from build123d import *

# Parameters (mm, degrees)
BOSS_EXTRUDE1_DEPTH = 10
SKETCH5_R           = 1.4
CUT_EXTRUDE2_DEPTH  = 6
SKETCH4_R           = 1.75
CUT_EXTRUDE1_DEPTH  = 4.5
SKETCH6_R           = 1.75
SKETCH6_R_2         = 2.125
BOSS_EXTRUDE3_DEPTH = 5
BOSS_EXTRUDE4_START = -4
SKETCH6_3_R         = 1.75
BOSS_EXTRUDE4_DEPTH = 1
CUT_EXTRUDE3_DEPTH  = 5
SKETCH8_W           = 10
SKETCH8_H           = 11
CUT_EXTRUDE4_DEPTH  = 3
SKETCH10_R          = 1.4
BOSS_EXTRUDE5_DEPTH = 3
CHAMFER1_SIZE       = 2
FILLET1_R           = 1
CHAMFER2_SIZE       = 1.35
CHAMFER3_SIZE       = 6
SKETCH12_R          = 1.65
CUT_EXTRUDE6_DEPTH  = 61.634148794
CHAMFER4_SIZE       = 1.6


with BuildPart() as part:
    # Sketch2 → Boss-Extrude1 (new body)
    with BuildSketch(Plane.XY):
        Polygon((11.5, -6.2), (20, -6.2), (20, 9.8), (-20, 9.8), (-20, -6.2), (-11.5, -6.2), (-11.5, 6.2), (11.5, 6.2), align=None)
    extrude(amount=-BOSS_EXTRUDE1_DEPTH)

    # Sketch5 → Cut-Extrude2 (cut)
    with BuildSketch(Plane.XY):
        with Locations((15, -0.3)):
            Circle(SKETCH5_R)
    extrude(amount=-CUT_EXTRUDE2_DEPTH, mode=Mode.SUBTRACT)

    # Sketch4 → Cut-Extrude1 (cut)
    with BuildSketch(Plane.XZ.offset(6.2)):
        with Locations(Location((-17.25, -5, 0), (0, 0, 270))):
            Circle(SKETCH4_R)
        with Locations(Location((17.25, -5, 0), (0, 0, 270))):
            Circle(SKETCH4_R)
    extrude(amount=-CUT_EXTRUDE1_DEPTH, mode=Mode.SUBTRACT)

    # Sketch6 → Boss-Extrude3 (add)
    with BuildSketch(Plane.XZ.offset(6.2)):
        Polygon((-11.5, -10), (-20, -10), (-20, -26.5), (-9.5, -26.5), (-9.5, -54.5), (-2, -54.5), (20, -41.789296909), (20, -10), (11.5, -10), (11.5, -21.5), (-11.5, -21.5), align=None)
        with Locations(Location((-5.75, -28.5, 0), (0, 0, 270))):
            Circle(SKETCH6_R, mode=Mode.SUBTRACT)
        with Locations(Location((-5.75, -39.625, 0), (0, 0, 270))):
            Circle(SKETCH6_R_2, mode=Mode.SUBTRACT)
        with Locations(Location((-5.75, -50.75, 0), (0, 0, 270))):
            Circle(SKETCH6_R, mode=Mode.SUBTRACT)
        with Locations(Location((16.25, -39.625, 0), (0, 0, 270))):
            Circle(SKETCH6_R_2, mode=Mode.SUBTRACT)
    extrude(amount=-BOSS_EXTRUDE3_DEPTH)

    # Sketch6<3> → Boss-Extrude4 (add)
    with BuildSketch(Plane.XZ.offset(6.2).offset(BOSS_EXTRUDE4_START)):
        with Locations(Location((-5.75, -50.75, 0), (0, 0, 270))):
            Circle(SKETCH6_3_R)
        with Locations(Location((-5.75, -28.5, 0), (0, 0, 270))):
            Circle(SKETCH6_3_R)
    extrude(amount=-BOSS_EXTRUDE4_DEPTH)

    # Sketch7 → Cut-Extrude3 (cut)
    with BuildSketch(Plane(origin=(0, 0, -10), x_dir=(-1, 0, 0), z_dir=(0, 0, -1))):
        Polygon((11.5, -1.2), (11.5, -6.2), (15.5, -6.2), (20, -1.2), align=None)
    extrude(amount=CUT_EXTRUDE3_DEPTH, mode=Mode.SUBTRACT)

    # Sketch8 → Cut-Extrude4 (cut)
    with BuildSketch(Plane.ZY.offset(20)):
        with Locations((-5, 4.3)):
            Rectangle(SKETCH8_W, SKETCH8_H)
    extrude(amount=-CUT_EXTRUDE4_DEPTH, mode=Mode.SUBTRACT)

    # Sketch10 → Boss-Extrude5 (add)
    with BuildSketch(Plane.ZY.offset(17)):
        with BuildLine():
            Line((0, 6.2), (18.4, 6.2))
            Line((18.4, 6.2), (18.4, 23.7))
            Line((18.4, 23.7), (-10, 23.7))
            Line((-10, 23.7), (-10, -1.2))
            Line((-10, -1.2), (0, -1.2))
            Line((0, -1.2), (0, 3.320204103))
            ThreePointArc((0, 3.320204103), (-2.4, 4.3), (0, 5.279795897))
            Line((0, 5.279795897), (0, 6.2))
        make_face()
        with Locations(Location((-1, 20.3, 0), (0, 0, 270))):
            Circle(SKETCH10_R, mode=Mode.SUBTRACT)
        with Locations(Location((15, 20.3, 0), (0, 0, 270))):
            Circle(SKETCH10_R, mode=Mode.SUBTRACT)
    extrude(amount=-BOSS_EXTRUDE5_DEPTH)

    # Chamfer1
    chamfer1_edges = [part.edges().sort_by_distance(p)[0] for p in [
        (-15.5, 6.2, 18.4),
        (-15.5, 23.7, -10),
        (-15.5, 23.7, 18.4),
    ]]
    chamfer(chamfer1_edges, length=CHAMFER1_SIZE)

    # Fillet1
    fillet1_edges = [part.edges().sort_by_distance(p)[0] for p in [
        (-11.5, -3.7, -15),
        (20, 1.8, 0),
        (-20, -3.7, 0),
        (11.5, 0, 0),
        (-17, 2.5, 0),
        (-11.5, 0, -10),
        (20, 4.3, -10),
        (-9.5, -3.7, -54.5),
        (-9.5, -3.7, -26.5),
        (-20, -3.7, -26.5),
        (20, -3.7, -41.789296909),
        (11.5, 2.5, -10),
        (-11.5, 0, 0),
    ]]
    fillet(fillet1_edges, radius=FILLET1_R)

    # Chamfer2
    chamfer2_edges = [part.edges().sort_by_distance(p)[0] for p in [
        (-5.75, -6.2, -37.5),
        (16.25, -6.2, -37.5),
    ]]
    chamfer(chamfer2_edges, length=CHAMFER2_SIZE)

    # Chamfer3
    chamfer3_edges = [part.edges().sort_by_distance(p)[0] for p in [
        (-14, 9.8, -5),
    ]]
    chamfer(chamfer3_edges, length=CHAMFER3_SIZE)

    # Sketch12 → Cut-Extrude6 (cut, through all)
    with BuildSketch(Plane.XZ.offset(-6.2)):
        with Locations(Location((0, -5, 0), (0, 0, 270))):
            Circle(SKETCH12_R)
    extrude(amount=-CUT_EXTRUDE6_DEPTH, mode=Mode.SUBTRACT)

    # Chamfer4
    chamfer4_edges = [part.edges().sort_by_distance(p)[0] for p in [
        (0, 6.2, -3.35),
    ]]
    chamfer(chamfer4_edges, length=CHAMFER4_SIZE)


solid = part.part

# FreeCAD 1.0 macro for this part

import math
import FreeCAD as App
import Part
import Sketcher

V = App.Vector


def edges_at(feature, points):
    """Names of the edges that pass closest to the given points."""
    edges = feature.Shape.Edges
    near = lambda p: min(range(len(edges)), key=lambda i: edges[i].distToShape(Part.Vertex(*p))[0])
    return sorted({f"Edge{near(p) + 1}" for p in points})


def add_polygon(sketch, points):
    """Adds a closed chain of lines whose ends are joined by coincident constraints."""
    first, n = sketch.GeometryCount, len(points)
    for a, b in zip(points, points[1:] + points[:1]):
        sketch.addGeometry(Part.LineSegment(App.Vector(*a, 0), App.Vector(*b, 0)), False)
    for i in range(n):
        sketch.addConstraint(Sketcher.Constraint("Coincident", first + i, 2, first + (i + 1) % n, 1))

doc = App.newDocument("Part")
body = doc.addObject("PartDesign::Body", "Body")

sketch1 = body.newObject("Sketcher::SketchObject", "Sketch")
sketch1.AttachmentSupport = (doc.getObject("XY_Plane"), [""])
sketch1.MapMode = "FlatFace"
add_polygon(sketch1, [(12, -6), (20, -6), (20, 10), (-20, 10), (-20, -6), (-12, -6), (-12, 6), (12, 6)])
sketch1.addConstraint([
    Sketcher.Constraint("Horizontal", 0),
    Sketcher.Constraint("Vertical", 1),
    Sketcher.Constraint("Horizontal", 2),
    Sketcher.Constraint("Vertical", 3),
    Sketcher.Constraint("Horizontal", 4),
    Sketcher.Constraint("Vertical", 5),
    Sketcher.Constraint("Horizontal", 6),
    Sketcher.Constraint("Vertical", 7),
    Sketcher.Constraint("Symmetric", 4, 2, 6, 2, -1, 1),
    Sketcher.Constraint("Symmetric", 0, 2, 3, 2, -2),
    Sketcher.Constraint("DistanceX", 2, 2, 2, 1, 40.0),
    Sketcher.Constraint("DistanceX", 6, 1, 6, 2, 23.0),
    Sketcher.Constraint("DistanceY", 1, 1, 1, 2, 16.0),
    Sketcher.Constraint("DistanceY", 5, 1, 5, 2, 12.4),
])
pad1 = body.newObject("PartDesign::Pad", "Pad")
pad1.Profile = sketch1
pad1.Length = 10
pad1.Reversed = True

sketch2 = body.newObject("Sketcher::SketchObject", "Sketch001")
sketch2.AttachmentSupport = (doc.getObject("XY_Plane"), [""])
sketch2.MapMode = "FlatFace"
sketch2.addGeometry(Part.Circle(V(15, -0.3, 0), V(0, 0, 1), 1.4), False)
sketch2.addConstraint([
    Sketcher.Constraint("Diameter", 0, 2.8),
    Sketcher.Constraint("DistanceX", -1, 1, 0, 3, 15.0),
    Sketcher.Constraint("DistanceY", 0, 3, -1, 1, 0.3),
])
pocket1 = body.newObject("PartDesign::Pocket", "Pocket")
pocket1.Profile = sketch2
pocket1.Length = 6

sketch3 = body.newObject("Sketcher::SketchObject", "Sketch002")
sketch3.AttachmentSupport = (doc.getObject("XZ_Plane"), [""])
sketch3.MapMode = "FlatFace"
sketch3.AttachmentOffset = App.Placement(V(0, 0, 6.2), App.Rotation())
sketch3.addGeometry([
    Part.Circle(V(-17.2, -5, 0), V(0, 0, 1), 1.8),
    Part.Circle(V(17.2, -5, 0), V(0, 0, 1), 1.8),
], False)
sketch3.addConstraint([
    Sketcher.Constraint("Equal", 0, 1),
    Sketcher.Constraint("Symmetric", 0, 3, 1, 3, -2),
    Sketcher.Constraint("Diameter", 0, 3.5),
    Sketcher.Constraint("DistanceY", 0, 3, -1, 1, 5.0),
    Sketcher.Constraint("DistanceX", 0, 3, 1, 3, 34.5),
])
pocket2 = body.newObject("PartDesign::Pocket", "Pocket001")
pocket2.Profile = sketch3
pocket2.Length = 4.5

sketch4 = body.newObject("Sketcher::SketchObject", "Sketch003")
sketch4.AttachmentSupport = (doc.getObject("XZ_Plane"), [""])
sketch4.MapMode = "FlatFace"
sketch4.AttachmentOffset = App.Placement(V(0, 0, 6.2), App.Rotation())
add_polygon(sketch4, [(-11.5, -10), (-20, -10), (-20, -26.5), (-9.5, -26.5), (-9.5, -54.5), (-2, -54.5), (20, -41.8), (20, -10), (11.5, -10), (11.5, -21.5), (-11.5, -21.5)])
sketch4.addGeometry(Part.Circle(V(-5.8, -50.8, 0), V(0, 0, 1), 1.8), False)
sketch4.addGeometry(Part.Circle(V(-5.8, -39.6, 0), V(0, 0, 1), 2.1), False)
sketch4.addGeometry(Part.Circle(V(16.2, -39.6, 0), V(0, 0, 1), 2.1), False)
sketch4.addGeometry(Part.Circle(V(-5.8, -28.5, 0), V(0, 0, 1), 1.8), False)
sketch4.addConstraint([
    Sketcher.Constraint("Horizontal", 0),
    Sketcher.Constraint("Vertical", 1),
    Sketcher.Constraint("Horizontal", 2),
    Sketcher.Constraint("Vertical", 3),
    Sketcher.Constraint("Horizontal", 4),
    Sketcher.Constraint("Vertical", 6),
    Sketcher.Constraint("Horizontal", 7),
    Sketcher.Constraint("Vertical", 8),
    Sketcher.Constraint("Horizontal", 9),
    Sketcher.Constraint("Vertical", 10),
    Sketcher.Constraint("Equal", 12, 13),
    Sketcher.Constraint("Equal", 11, 14),
    Sketcher.Constraint("Symmetric", 0, 2, 6, 2, -2),
    Sketcher.Constraint("Horizontal", 12, 3, 13, 3),
    Sketcher.Constraint("Vertical", 11, 3, 12, 3),
    Sketcher.Constraint("Vertical", 12, 3, 14, 3),
    Sketcher.Constraint("Equal", 0, 7),
    Sketcher.Constraint("Diameter", 11, 3.5),
    Sketcher.Constraint("Diameter", 12, 4.25),
    Sketcher.Constraint("DistanceX", 9, 2, 9, 1, 23.0),
    Sketcher.Constraint("DistanceY", 3, 2, 3, 1, 28.0),
    Sketcher.Constraint("DistanceX", 0, 2, 0, 1, 8.5),
    Sketcher.Constraint("DistanceX", 2, 1, 2, 2, 10.5),
    Sketcher.Constraint("DistanceX", 4, 1, 4, 2, 7.5),
    Sketcher.Constraint("DistanceY", 1, 2, 1, 1, 16.5),
    Sketcher.Constraint("DistanceY", 8, 2, 8, 1, 11.5),
    Sketcher.Constraint("DistanceY", 0, 2, -1, 1, 10.0),
    Sketcher.Constraint("DistanceX", 12, 3, 13, 3, 22.0),
    Sketcher.Constraint("DistanceY", 14, 3, 1, 2, 2.0),
    Sketcher.Constraint("DistanceX", 11, 3, -1, 1, 5.75),
    Sketcher.Constraint("DistanceY", 11, 3, -1, 1, 50.75),
    Sketcher.Constraint("DistanceY", 12, 3, -1, 1, 39.625),
    Sketcher.Constraint("Distance", 5, 25.407912),
])
pad2 = body.newObject("PartDesign::Pad", "Pad001")
pad2.Profile = sketch4
pad2.Length = 5
pad2.Reversed = True

sketch5 = body.newObject("Sketcher::SketchObject", "Sketch004")
sketch5.AttachmentSupport = (doc.getObject("XZ_Plane"), [""])
sketch5.MapMode = "FlatFace"
sketch5.AttachmentOffset = App.Placement(V(0, 0, 2.2), App.Rotation())
sketch5.addGeometry([
    Part.Circle(V(-5.8, -50.8, 0), V(0, 0, 1), 1.8),
    Part.Circle(V(-5.8, -28.5, 0), V(0, 0, 1), 1.8),
], False)
sketch5.addConstraint([
    Sketcher.Constraint("Equal", 0, 1),
    Sketcher.Constraint("Vertical", 0, 3, 1, 3),
    Sketcher.Constraint("Diameter", 0, 3.5),
    Sketcher.Constraint("DistanceY", 1, 3, -1, 1, 28.5),
    Sketcher.Constraint("DistanceX", 0, 3, -1, 1, 5.75),
    Sketcher.Constraint("DistanceY", 0, 3, -1, 1, 50.75),
])
pad3 = body.newObject("PartDesign::Pad", "Pad002")
pad3.Profile = sketch5
pad3.Length = 1
pad3.Reversed = True

sketch6 = body.newObject("Sketcher::SketchObject", "Sketch005")
sketch6.AttachmentSupport = (doc.getObject("XY_Plane"), [""])
sketch6.MapMode = "FlatFace"
sketch6.AttachmentOffset = App.Placement(V(0, 0, -10), App.Rotation())
add_polygon(sketch6, [(-11.5, -1.2), (-11.5, -6.2), (-15.5, -6.2), (-20, -1.2)])
sketch6.addConstraint([
    Sketcher.Constraint("Vertical", 0),
    Sketcher.Constraint("Horizontal", 1),
    Sketcher.Constraint("Horizontal", 3),
    Sketcher.Constraint("DistanceX", 1, 2, 1, 1, 4.0),
    Sketcher.Constraint("DistanceY", 0, 2, 0, 1, 5.0),
    Sketcher.Constraint("DistanceX", 3, 1, 3, 2, 8.5),
    Sketcher.Constraint("DistanceX", 2, 2, -1, 1, 20.0),
    Sketcher.Constraint("DistanceY", 0, 2, -1, 1, 6.2),
])
pocket3 = body.newObject("PartDesign::Pocket", "Pocket002")
pocket3.Profile = sketch6
pocket3.Length = 5

sketch7 = body.newObject("Sketcher::SketchObject", "Sketch006")
sketch7.AttachmentSupport = (doc.getObject("YZ_Plane"), [""])
sketch7.MapMode = "FlatFace"
sketch7.AttachmentOffset = App.Placement(V(0, 0, -20), App.Rotation())
add_polygon(sketch7, [(10, -10), (-1, -10), (-1, 0), (10, 0)])
sketch7.addConstraint([
    Sketcher.Constraint("Horizontal", 0),
    Sketcher.Constraint("Vertical", 1),
    Sketcher.Constraint("Horizontal", 2),
    Sketcher.Constraint("Vertical", 3),
    Sketcher.Constraint("PointOnObject", 1, 2, -1),
    Sketcher.Constraint("DistanceX", 0, 2, 0, 1, 11.0),
    Sketcher.Constraint("DistanceY", 1, 1, 1, 2, 10.0),
    Sketcher.Constraint("DistanceX", 0, 2, -1, 1, 1.2),
])
pocket4 = body.newObject("PartDesign::Pocket", "Pocket003")
pocket4.Profile = sketch7
pocket4.Length = 3
pocket4.Reversed = True

sketch8 = body.newObject("Sketcher::SketchObject", "Sketch007")
sketch8.AttachmentSupport = (doc.getObject("YZ_Plane"), [""])
sketch8.MapMode = "FlatFace"
sketch8.AttachmentOffset = App.Placement(V(0, 0, -17), App.Rotation())
sketch8.addGeometry([
    Part.LineSegment(V(6.2, 0, 0), V(6.2, 18.4, 0)),
    Part.LineSegment(V(6.2, 18.4, 0), V(23.7, 18.4, 0)),
    Part.LineSegment(V(23.7, 18.4, 0), V(23.7, -10, 0)),
    Part.LineSegment(V(23.7, -10, 0), V(-1.2, -10, 0)),
    Part.LineSegment(V(-1.2, -10, 0), V(-1.2, 0, 0)),
    Part.LineSegment(V(-1.2, 0, 0), V(3.3, 0, 0)),
    Part.ArcOfCircle(Part.Circle(V(4.3, -1, 0), V(0, 0, 1), 1.4), math.radians(134), math.radians(406)),
    Part.LineSegment(V(5.3, 0, 0), V(6.2, 0, 0)),
    Part.Circle(V(20.3, -1, 0), V(0, 0, 1), 1.4),
    Part.Circle(V(20.3, 15, 0), V(0, 0, 1), 1.4),
], False)
sketch8.addConstraint([
    Sketcher.Constraint("Coincident", 0, 2, 1, 1),
    Sketcher.Constraint("Coincident", 1, 2, 2, 1),
    Sketcher.Constraint("Coincident", 2, 2, 3, 1),
    Sketcher.Constraint("Coincident", 3, 2, 4, 1),
    Sketcher.Constraint("Coincident", 4, 2, 5, 1),
    Sketcher.Constraint("Coincident", 5, 2, 6, 1),
    Sketcher.Constraint("Coincident", 6, 2, 7, 1),
    Sketcher.Constraint("Coincident", 7, 2, 0, 1),
    Sketcher.Constraint("Vertical", 0),
    Sketcher.Constraint("Horizontal", 1),
    Sketcher.Constraint("Vertical", 2),
    Sketcher.Constraint("Horizontal", 3),
    Sketcher.Constraint("Vertical", 4),
    Sketcher.Constraint("Horizontal", 5),
    Sketcher.Constraint("Horizontal", 7),
    Sketcher.Constraint("Equal", 6, 8),
    Sketcher.Constraint("Equal", 8, 9),
    Sketcher.Constraint("PointOnObject", 4, 2, -1),
    Sketcher.Constraint("PointOnObject", 6, 2, -1),
    Sketcher.Constraint("Horizontal", 6, 3, 8, 3),
    Sketcher.Constraint("Vertical", 8, 3, 9, 3),
    Sketcher.Constraint("Diameter", 8, 2.8),
    Sketcher.Constraint("DistanceY", 4, 1, 4, 2, 10.0),
    Sketcher.Constraint("DistanceX", 1, 1, 1, 2, 17.5),
    Sketcher.Constraint("DistanceX", 3, 2, 3, 1, 24.9),
    Sketcher.Constraint("DistanceY", 0, 1, 0, 2, 18.4),
    Sketcher.Constraint("DistanceY", 6, 3, -1, 1, 1.0),
    Sketcher.Constraint("DistanceY", -1, 1, 9, 3, 15.0),
    Sketcher.Constraint("DistanceX", 6, 3, 8, 3, 16.0),
    Sketcher.Constraint("DistanceX", -1, 1, 6, 3, 4.3),
    Sketcher.Constraint("DistanceX", -1, 1, 0, 2, 6.2),
])
pad4 = body.newObject("PartDesign::Pad", "Pad003")
pad4.Profile = sketch8
pad4.Length = 3
doc.recompute()

chamfer = body.newObject("PartDesign::Chamfer", "Chamfer")
chamfer.Base = (pad4, edges_at(pad4, [(-15.5, 6.2, 18.4), (-15.5, 23.7, -10), (-15.5, 23.7, 18.4)]))
chamfer.Size = 2
doc.recompute()

fillet = body.newObject("PartDesign::Fillet", "Fillet")
fillet.Base = (chamfer, edges_at(chamfer, [
    (-11.5, -3.7, -15),
    (20, 1.8, 0),
    (-20, -3.7, 0),
    (11.5, 0, 0),
    (-17, 2.5, 0),
    (-11.5, 0, -10),
    (20, 4.3, -10),
    (-9.5, -3.7, -54.5),
    (-9.5, -3.7, -26.5),
    (-20, -3.7, -26.5),
    (20, -3.7, -41.789),
    (11.5, 2.5, -10),
    (-11.5, 0, 0),
]))
fillet.Radius = 1
doc.recompute()

chamfer2 = body.newObject("PartDesign::Chamfer", "Chamfer001")
chamfer2.Base = (fillet, edges_at(fillet, [(-5.75, -6.2, -37.5), (16.25, -6.2, -37.5)]))
chamfer2.Size = 1.35
doc.recompute()

chamfer3 = body.newObject("PartDesign::Chamfer", "Chamfer002")
chamfer3.Base = (chamfer2, edges_at(chamfer2, [(-14, 9.8, -5)]))
chamfer3.Size = 6

sketch9 = body.newObject("Sketcher::SketchObject", "Sketch008")
sketch9.AttachmentSupport = (doc.getObject("XZ_Plane"), [""])
sketch9.MapMode = "FlatFace"
sketch9.AttachmentOffset = App.Placement(V(0, 0, -6.2), App.Rotation())
sketch9.addGeometry(Part.Circle(V(0, -5, 0), V(0, 0, 1), 1.6), False)
sketch9.addConstraint([
    Sketcher.Constraint("PointOnObject", 0, 3, -2),
    Sketcher.Constraint("Diameter", 0, 3.3),
    Sketcher.Constraint("DistanceY", 0, 3, -1, 1, 5.0),
])
pocket5 = body.newObject("PartDesign::Pocket", "Pocket004")
pocket5.Profile = sketch9
pocket5.Type = "ThroughAll"
doc.recompute()

chamfer4 = body.newObject("PartDesign::Chamfer", "Chamfer003")
chamfer4.Base = (pocket5, edges_at(pocket5, [(0, 6.2, -3.35)]))
chamfer4.Size = 1.6

doc.recompute()
